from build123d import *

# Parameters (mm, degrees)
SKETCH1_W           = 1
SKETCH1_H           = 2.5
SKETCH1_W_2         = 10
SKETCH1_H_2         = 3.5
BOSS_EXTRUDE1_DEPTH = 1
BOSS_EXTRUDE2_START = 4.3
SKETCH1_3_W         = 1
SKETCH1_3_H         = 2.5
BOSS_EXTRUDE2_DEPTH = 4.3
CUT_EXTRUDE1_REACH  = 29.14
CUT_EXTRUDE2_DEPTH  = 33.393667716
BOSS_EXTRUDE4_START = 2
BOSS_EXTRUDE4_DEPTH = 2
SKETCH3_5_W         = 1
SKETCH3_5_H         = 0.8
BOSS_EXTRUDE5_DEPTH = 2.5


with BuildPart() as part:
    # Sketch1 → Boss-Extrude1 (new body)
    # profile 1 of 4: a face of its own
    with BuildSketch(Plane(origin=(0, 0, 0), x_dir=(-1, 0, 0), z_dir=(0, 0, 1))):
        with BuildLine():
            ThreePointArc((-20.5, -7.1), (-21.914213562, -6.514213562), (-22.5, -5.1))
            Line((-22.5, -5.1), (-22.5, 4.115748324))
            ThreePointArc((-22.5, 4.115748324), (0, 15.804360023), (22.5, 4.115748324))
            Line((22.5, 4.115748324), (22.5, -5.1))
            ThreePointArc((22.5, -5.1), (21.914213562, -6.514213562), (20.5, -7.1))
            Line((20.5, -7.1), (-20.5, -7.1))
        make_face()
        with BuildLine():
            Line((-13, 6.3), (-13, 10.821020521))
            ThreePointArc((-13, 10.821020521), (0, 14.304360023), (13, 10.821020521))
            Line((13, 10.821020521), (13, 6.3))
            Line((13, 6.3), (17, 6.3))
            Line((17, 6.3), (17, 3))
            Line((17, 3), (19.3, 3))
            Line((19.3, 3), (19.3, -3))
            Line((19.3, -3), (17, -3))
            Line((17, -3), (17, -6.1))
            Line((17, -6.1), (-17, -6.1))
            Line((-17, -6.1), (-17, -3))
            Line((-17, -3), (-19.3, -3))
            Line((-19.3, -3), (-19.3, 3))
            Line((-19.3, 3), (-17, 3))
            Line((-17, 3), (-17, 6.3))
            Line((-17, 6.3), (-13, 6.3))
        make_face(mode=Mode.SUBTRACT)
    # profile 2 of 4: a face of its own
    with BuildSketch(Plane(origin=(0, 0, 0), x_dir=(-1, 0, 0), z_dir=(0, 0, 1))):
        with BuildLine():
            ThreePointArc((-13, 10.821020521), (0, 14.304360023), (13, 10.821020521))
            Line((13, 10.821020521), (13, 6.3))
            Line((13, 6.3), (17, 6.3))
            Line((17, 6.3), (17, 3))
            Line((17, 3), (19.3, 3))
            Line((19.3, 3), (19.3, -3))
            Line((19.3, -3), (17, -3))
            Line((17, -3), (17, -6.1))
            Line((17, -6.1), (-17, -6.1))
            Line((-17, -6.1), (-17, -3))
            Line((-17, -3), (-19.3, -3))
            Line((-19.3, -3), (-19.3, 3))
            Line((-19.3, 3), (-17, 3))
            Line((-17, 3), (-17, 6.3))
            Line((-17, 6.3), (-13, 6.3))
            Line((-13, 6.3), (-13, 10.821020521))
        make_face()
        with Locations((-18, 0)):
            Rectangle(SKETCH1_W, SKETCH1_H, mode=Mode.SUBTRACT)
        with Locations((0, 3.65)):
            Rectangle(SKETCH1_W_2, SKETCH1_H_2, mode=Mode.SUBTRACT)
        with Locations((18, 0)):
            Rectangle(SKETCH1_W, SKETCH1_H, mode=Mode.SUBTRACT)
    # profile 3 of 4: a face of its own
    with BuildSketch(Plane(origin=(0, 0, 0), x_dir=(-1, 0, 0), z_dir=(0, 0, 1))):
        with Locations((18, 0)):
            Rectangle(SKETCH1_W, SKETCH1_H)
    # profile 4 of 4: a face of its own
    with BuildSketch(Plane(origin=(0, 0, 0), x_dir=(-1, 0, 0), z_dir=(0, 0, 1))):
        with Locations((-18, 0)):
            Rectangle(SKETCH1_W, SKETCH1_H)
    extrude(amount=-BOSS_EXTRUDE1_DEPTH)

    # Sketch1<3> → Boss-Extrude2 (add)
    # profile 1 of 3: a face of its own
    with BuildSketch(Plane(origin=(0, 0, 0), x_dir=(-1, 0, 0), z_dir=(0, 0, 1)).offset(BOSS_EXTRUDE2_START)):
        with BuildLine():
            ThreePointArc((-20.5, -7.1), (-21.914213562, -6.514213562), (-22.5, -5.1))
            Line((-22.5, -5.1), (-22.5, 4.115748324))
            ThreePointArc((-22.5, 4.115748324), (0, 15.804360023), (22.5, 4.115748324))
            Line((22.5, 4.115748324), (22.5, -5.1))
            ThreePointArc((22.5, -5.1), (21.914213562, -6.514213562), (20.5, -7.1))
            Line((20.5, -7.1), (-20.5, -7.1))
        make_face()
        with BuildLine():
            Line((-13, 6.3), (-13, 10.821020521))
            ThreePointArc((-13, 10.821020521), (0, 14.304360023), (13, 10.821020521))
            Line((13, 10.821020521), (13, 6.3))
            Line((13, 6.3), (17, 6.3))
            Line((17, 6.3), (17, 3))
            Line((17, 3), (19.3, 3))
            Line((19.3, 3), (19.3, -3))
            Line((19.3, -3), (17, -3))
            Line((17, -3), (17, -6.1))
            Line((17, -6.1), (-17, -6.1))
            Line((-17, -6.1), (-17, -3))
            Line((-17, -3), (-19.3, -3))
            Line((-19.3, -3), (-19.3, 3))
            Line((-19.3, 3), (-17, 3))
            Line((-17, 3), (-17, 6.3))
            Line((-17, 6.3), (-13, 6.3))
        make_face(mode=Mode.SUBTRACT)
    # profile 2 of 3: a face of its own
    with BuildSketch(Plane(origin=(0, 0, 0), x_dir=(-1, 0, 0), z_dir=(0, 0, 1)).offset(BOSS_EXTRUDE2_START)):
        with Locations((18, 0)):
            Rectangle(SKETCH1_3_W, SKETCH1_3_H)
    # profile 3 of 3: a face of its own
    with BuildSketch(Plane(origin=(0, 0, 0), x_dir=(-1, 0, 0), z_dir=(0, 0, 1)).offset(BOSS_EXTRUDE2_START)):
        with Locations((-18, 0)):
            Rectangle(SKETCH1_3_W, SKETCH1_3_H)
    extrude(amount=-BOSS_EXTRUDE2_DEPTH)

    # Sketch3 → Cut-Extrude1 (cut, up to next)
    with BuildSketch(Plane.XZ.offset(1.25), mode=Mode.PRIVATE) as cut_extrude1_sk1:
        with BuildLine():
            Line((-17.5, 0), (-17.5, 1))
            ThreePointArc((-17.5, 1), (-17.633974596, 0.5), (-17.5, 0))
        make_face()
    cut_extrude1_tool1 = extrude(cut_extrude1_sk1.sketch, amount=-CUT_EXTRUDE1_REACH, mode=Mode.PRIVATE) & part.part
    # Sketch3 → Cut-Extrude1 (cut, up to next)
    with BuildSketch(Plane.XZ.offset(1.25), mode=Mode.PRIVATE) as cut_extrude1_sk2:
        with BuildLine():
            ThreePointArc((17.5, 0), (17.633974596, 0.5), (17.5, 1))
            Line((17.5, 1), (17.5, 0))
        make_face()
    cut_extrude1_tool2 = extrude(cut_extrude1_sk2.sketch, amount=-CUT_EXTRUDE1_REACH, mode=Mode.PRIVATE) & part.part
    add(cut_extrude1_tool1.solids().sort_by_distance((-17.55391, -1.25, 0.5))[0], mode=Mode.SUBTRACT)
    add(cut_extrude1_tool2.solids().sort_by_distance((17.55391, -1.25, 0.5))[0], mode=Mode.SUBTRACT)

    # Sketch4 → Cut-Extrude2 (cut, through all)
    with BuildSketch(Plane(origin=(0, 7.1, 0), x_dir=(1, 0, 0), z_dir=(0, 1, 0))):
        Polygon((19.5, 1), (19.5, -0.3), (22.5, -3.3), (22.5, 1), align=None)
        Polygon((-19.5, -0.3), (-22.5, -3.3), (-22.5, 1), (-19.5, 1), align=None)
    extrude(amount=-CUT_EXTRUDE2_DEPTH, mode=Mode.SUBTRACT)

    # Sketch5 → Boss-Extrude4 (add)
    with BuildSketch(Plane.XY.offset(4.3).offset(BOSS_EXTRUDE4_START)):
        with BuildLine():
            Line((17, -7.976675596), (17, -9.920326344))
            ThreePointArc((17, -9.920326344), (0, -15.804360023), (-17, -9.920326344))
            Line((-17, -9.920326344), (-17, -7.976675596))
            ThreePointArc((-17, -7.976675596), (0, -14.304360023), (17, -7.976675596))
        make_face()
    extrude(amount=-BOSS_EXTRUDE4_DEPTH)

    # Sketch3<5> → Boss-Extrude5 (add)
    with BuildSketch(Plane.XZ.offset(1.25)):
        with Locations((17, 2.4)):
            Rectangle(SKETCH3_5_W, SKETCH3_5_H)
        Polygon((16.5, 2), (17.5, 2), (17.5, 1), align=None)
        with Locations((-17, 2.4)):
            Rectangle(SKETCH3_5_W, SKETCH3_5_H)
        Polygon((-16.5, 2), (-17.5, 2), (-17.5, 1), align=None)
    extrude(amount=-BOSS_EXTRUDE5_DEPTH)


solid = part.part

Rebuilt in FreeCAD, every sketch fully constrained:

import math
import FreeCAD as App
import Part
import Sketcher
from FreeCAD import Vector
Q = App.Units.Quantity


def add_polygon(sketch, points):
    """Adds a closed chain of lines whose ends are joined by coincident constraints."""
    first, n = sketch.GeometryCount, len(points)
    for a, b in zip(points, points[1:] + points[:1]):
        sketch.addGeometry(Part.LineSegment(App.Vector(*a, 0), App.Vector(*b, 0)), False)
    for i in range(n):
        sketch.addConstraint(Sketcher.Constraint("Coincident", first + i, 2, first + (i + 1) % n, 1))

doc = App.newDocument("Part")
params = doc.addObject("Spreadsheet::Sheet", "Params")
for row, (alias, value) in enumerate([
    ("sketch1_radius", "2 mm"),
    ("sketch1_radius2", "27.5 mm"),
    ("sketch1_width", "41 mm"),
    ("sketch1_width2", "10 mm"),
    ("sketch1_height", "3.5 mm"),
    ("pad1_length", "1 mm"),
    ("sketch2_radius", "2 mm"),
    ("sketch2_radius2", "26 mm"),
    ("sketch2_radius3", "27.5 mm"),
    ("sketch2_width", "41 mm"),
    ("sketch2_width2", "4 mm"),
    ("pad2_length", "4.3 mm"),
    ("sketch3_radius", "1 mm"),
    ("sketch3_height", "1 mm"),
    ("sketch4_radius", "1 mm"),
    ("sketch4_height", "1 mm"),
    ("sketch5_width", "3 mm"),
    ("sketch5_height", "1.3 mm"),
    ("sketch6_radius", "26 mm"),
    ("sketch6_radius2", "27.5 mm"),
    ("pad3_length", "2 mm"),
    ("sketch7_width", "1 mm"),
    ("sketch7_height", "0.8 mm"),
    ("pad4_length", "2.5 mm"),
], start=1):
    params.set(f"A{row}", alias)
    params.set(f"B{row}", "=" + value)
    params.setAlias(f"B{row}", alias)

body = doc.addObject("PartDesign::Body", "Body")

# Sketch on XY plane
sketch1 = body.newObject("Sketcher::SketchObject", "Sketch")
sketch1.AttachmentSupport = (doc.getObject("XY_Plane"), [""])
sketch1.MapMode = "FlatFace"
sketch1.addGeometry(Part.ArcOfCircle(Part.Circle(Vector(20.5, 5.1, 0), Vector(0, 0, 1), 2), math.radians(0), math.radians(90)), False)  # 0
sketch1.addGeometry(Part.LineSegment(Vector(20.5, 7.1, 0), Vector(-20.5, 7.1, 0)), False)  # 1
sketch1.addGeometry(Part.ArcOfCircle(Part.Circle(Vector(-20.5, 5.1, 0), Vector(0, 0, 1), 2), math.radians(90), math.radians(180)), False)  # 2
sketch1.addGeometry(Part.LineSegment(Vector(-22.5, 5.1, 0), Vector(-22.5, -4.1, 0)), False)  # 3
sketch1.addGeometry(Part.ArcOfCircle(Part.Circle(Vector(0, 11.7, 0), Vector(0, 0, 1), 27.5), math.radians(-145), math.radians(-35)), False)  # 4
sketch1.addGeometry(Part.LineSegment(Vector(22.5, -4.1, 0), Vector(22.5, 5.1, 0)), False)  # 5
add_polygon(sketch1, [(5, -5.4), (-5, -5.4), (-5, -1.9), (5, -1.9)])  # lines 6-9
sketch1.addConstraint(Sketcher.Constraint("Tangent", 0, 2, 1, 1))
sketch1.addConstraint(Sketcher.Constraint("Tangent", 1, 2, 2, 1))
sketch1.addConstraint(Sketcher.Constraint("Tangent", 2, 2, 3, 1))
sketch1.addConstraint(Sketcher.Constraint("Coincident", 3, 2, 4, 1))
sketch1.addConstraint(Sketcher.Constraint("Coincident", 4, 2, 5, 1))
sketch1.addConstraint(Sketcher.Constraint("Tangent", 5, 2, 0, 1))
sketch1.addConstraint(Sketcher.Constraint("Horizontal", 1))
sketch1.addConstraint(Sketcher.Constraint("Vertical", 3))
sketch1.addConstraint(Sketcher.Constraint("Vertical", 5))
sketch1.addConstraint(Sketcher.Constraint("Horizontal", 6))
sketch1.addConstraint(Sketcher.Constraint("Vertical", 7))
sketch1.addConstraint(Sketcher.Constraint("Horizontal", 8))
sketch1.addConstraint(Sketcher.Constraint("Vertical", 9))
sketch1.addConstraint(Sketcher.Constraint("Equal", 0, 2))
sketch1.addConstraint(Sketcher.Constraint("Symmetric", 3, 2, 4, 2, -2))
sketch1.addConstraint(Sketcher.Constraint("Radius", 0, Q("2 mm")))
sketch1.addConstraint(Sketcher.Constraint("Radius", 4, Q("27.5 mm")))
sketch1.addConstraint(Sketcher.Constraint("DistanceX", 1, 2, 1, 1, Q("41 mm")))
sketch1.addConstraint(Sketcher.Constraint("DistanceX", 6, 2, 6, 1, Q("10 mm")))
sketch1.addConstraint(Sketcher.Constraint("DistanceY", 7, 1, 7, 2, Q("3.5 mm")))
sketch1.addConstraint(Sketcher.Constraint("DistanceX", 6, 2, -1, 1, Q("5 mm")))
sketch1.addConstraint(Sketcher.Constraint("DistanceY", 7, 2, 2, 3, Q("7 mm")))
sketch1.addConstraint(Sketcher.Constraint("DistanceY", -1, 1, 0, 3, Q("5.1 mm")))
sketch1.addConstraint(Sketcher.Constraint("DistanceY", 3, 2, 3, 1, Q("9.215748 mm")))
sketch1.setExpression("Constraints[19]", "Params.sketch1_radius")
sketch1.setExpression("Constraints[20]", "Params.sketch1_radius2")
sketch1.setExpression("Constraints[21]", "Params.sketch1_width")
sketch1.setExpression("Constraints[22]", "Params.sketch1_width2")
sketch1.setExpression("Constraints[23]", "Params.sketch1_height")
pad1 = body.newObject("PartDesign::Pad", "Pad")
pad1.Profile = sketch1
pad1.setExpression("Length", "Params.pad1_length")
pad1.Reversed = True

# Sketch on XY plane
sketch2 = body.newObject("Sketcher::SketchObject", "Sketch001")
sketch2.AttachmentSupport = (doc.getObject("XY_Plane"), [""])
sketch2.MapMode = "FlatFace"
sketch2.AttachmentOffset = App.Placement(Vector(0, 0, 4.3), App.Rotation())
sketch2.addGeometry(Part.ArcOfCircle(Part.Circle(Vector(20.5, 5.1, 0), Vector(0, 0, 1), 2), math.radians(0), math.radians(90)), False)  # 0
sketch2.addGeometry(Part.LineSegment(Vector(20.5, 7.1, 0), Vector(-20.5, 7.1, 0)), False)  # 1
sketch2.addGeometry(Part.ArcOfCircle(Part.Circle(Vector(-20.5, 5.1, 0), Vector(0, 0, 1), 2), math.radians(90), math.radians(180)), False)  # 2
sketch2.addGeometry(Part.LineSegment(Vector(-22.5, 5.1, 0), Vector(-22.5, -4.1, 0)), False)  # 3
sketch2.addGeometry(Part.ArcOfCircle(Part.Circle(Vector(0, 11.7, 0), Vector(0, 0, 1), 27.5), math.radians(-145), math.radians(-35)), False)  # 4
sketch2.addGeometry(Part.LineSegment(Vector(22.5, -4.1, 0), Vector(22.5, 5.1, 0)), False)  # 5
sketch2.addGeometry(Part.LineSegment(Vector(13, -6.3, 0), Vector(13, -10.8, 0)), False)  # 6
sketch2.addGeometry(Part.ArcOfCircle(Part.Circle(Vector(0, 11.7, 0), Vector(0, 0, 1), 26), math.radians(-120), math.radians(-60)), False)  # 7
sketch2.addGeometry(Part.LineSegment(Vector(-13, -10.8, 0), Vector(-13, -6.3, 0)), False)  # 8
sketch2.addGeometry(Part.LineSegment(Vector(-13, -6.3, 0), Vector(-17, -6.3, 0)), False)  # 9
sketch2.addGeometry(Part.LineSegment(Vector(-17, -6.3, 0), Vector(-17, -3, 0)), False)  # 10
sketch2.addGeometry(Part.LineSegment(Vector(-17, -3, 0), Vector(-19.3, -3, 0)), False)  # 11
sketch2.addGeometry(Part.LineSegment(Vector(-19.3, -3, 0), Vector(-19.3, 3, 0)), False)  # 12
sketch2.addGeometry(Part.LineSegment(Vector(-19.3, 3, 0), Vector(-17, 3, 0)), False)  # 13
sketch2.addGeometry(Part.LineSegment(Vector(-17, 3, 0), Vector(-17, 6.1, 0)), False)  # 14
sketch2.addGeometry(Part.LineSegment(Vector(-17, 6.1, 0), Vector(17, 6.1, 0)), False)  # 15
sketch2.addGeometry(Part.LineSegment(Vector(17, 6.1, 0), Vector(17, 3, 0)), False)  # 16
sketch2.addGeometry(Part.LineSegment(Vector(17, 3, 0), Vector(19.3, 3, 0)), False)  # 17
sketch2.addGeometry(Part.LineSegment(Vector(19.3, 3, 0), Vector(19.3, -3, 0)), False)  # 18
sketch2.addGeometry(Part.LineSegment(Vector(19.3, -3, 0), Vector(17, -3, 0)), False)  # 19
sketch2.addGeometry(Part.LineSegment(Vector(17, -3, 0), Vector(17, -6.3, 0)), False)  # 20
sketch2.addGeometry(Part.LineSegment(Vector(17, -6.3, 0), Vector(13, -6.3, 0)), False)  # 21
add_polygon(sketch2, [(-17.5, -1.2), (-17.5, 1.2), (-18.5, 1.2), (-18.5, -1.2)])  # lines 22-25
add_polygon(sketch2, [(18.5, -1.2), (18.5, 1.2), (17.5, 1.2), (17.5, -1.2)])  # lines 26-29
sketch2.addConstraint(Sketcher.Constraint("Tangent", 0, 2, 1, 1))
sketch2.addConstraint(Sketcher.Constraint("Tangent", 1, 2, 2, 1))
sketch2.addConstraint(Sketcher.Constraint("Tangent", 2, 2, 3, 1))
sketch2.addConstraint(Sketcher.Constraint("Coincident", 3, 2, 4, 1))
sketch2.addConstraint(Sketcher.Constraint("Coincident", 4, 2, 5, 1))
sketch2.addConstraint(Sketcher.Constraint("Tangent", 5, 2, 0, 1))
sketch2.addConstraint(Sketcher.Constraint("Coincident", 6, 2, 7, 2))
sketch2.addConstraint(Sketcher.Constraint("Coincident", 7, 1, 8, 1))
sketch2.addConstraint(Sketcher.Constraint("Coincident", 8, 2, 9, 1))
sketch2.addConstraint(Sketcher.Constraint("Coincident", 9, 2, 10, 1))
sketch2.addConstraint(Sketcher.Constraint("Coincident", 10, 2, 11, 1))
sketch2.addConstraint(Sketcher.Constraint("Coincident", 11, 2, 12, 1))
sketch2.addConstraint(Sketcher.Constraint("Coincident", 12, 2, 13, 1))
sketch2.addConstraint(Sketcher.Constraint("Coincident", 13, 2, 14, 1))
sketch2.addConstraint(Sketcher.Constraint("Coincident", 14, 2, 15, 1))
sketch2.addConstraint(Sketcher.Constraint("Coincident", 15, 2, 16, 1))
sketch2.addConstraint(Sketcher.Constraint("Coincident", 16, 2, 17, 1))
sketch2.addConstraint(Sketcher.Constraint("Coincident", 17, 2, 18, 1))
sketch2.addConstraint(Sketcher.Constraint("Coincident", 18, 2, 19, 1))
sketch2.addConstraint(Sketcher.Constraint("Coincident", 19, 2, 20, 1))
sketch2.addConstraint(Sketcher.Constraint("Coincident", 20, 2, 21, 1))
sketch2.addConstraint(Sketcher.Constraint("Coincident", 21, 2, 6, 1))
sketch2.addConstraint(Sketcher.Constraint("Horizontal", 1))
sketch2.addConstraint(Sketcher.Constraint("Vertical", 3))
sketch2.addConstraint(Sketcher.Constraint("Vertical", 5))
sketch2.addConstraint(Sketcher.Constraint("Vertical", 6))
sketch2.addConstraint(Sketcher.Constraint("Vertical", 8))
sketch2.addConstraint(Sketcher.Constraint("Horizontal", 9))
sketch2.addConstraint(Sketcher.Constraint("Vertical", 10))
sketch2.addConstraint(Sketcher.Constraint("Horizontal", 11))
sketch2.addConstraint(Sketcher.Constraint("Vertical", 12))
sketch2.addConstraint(Sketcher.Constraint("Horizontal", 13))
sketch2.addConstraint(Sketcher.Constraint("Vertical", 14))
sketch2.addConstraint(Sketcher.Constraint("Horizontal", 15))
sketch2.addConstraint(Sketcher.Constraint("Vertical", 16))
sketch2.addConstraint(Sketcher.Constraint("Horizontal", 17))
sketch2.addConstraint(Sketcher.Constraint("Vertical", 18))
sketch2.addConstraint(Sketcher.Constraint("Horizontal", 19))
sketch2.addConstraint(Sketcher.Constraint("Vertical", 20))
sketch2.addConstraint(Sketcher.Constraint("Horizontal", 21))
sketch2.addConstraint(Sketcher.Constraint("Vertical", 22))
sketch2.addConstraint(Sketcher.Constraint("Horizontal", 23))
sketch2.addConstraint(Sketcher.Constraint("Vertical", 24))
sketch2.addConstraint(Sketcher.Constraint("Horizontal", 25))
sketch2.addConstraint(Sketcher.Constraint("Vertical", 26))
sketch2.addConstraint(Sketcher.Constraint("Horizontal", 27))
sketch2.addConstraint(Sketcher.Constraint("Vertical", 28))
sketch2.addConstraint(Sketcher.Constraint("Horizontal", 29))
sketch2.addConstraint(Sketcher.Constraint("Coincident", 7, 3, 4, 3))
sketch2.addConstraint(Sketcher.Constraint("Equal", 0, 2))
sketch2.addConstraint(Sketcher.Constraint("Symmetric", 10, 2, 16, 2, -1, 1))
sketch2.addConstraint(Sketcher.Constraint("Symmetric", 12, 2, 18, 2, -1, 1))
sketch2.addConstraint(Sketcher.Constraint("Symmetric", 24, 2, 26, 2, -1, 1))
sketch2.addConstraint(Sketcher.Constraint("Symmetric", 22, 2, 28, 2, -1, 1))
sketch2.addConstraint(Sketcher.Constraint("Symmetric", 3, 2, 4, 2, -2))
sketch2.addConstraint(Sketcher.Constraint("Symmetric", 13, 2, 16, 2, -2))
sketch2.addConstraint(Sketcher.Constraint("Symmetric", 9, 2, 20, 2, -2))
sketch2.addConstraint(Sketcher.Constraint("Horizontal", 6, 2, 7, 1))
sketch2.addConstraint(Sketcher.Constraint("Horizontal", 23, 2, 26, 2))
sketch2.addConstraint(Sketcher.Constraint("Radius", 0, Q("2 mm")))
sketch2.addConstraint(Sketcher.Constraint("Radius", 7, Q("26 mm")))
sketch2.addConstraint(Sketcher.Constraint("Radius", 4, Q("27.5 mm")))
sketch2.addConstraint(Sketcher.Constraint("DistanceX", 1, 2, 1, 1, Q("41 mm")))
sketch2.addConstraint(Sketcher.Constraint("DistanceX", 9, 2, 9, 1, Q("4 mm")))
sketch2.addConstraint(Sketcher.Constraint("DistanceX", 15, 1, 15, 2, Q("34 mm")))
sketch2.addConstraint(Sketcher.Constraint("DistanceX", 23, 2, 23, 1, Q("1 mm")))
sketch2.addConstraint(Sketcher.Constraint("DistanceY", 12, 1, 12, 2, Q("6 mm")))
sketch2.addConstraint(Sketcher.Constraint("DistanceX", 11, 2, 11, 1, Q("2.3 mm")))
sketch2.addConstraint(Sketcher.Constraint("DistanceY", 10, 1, 10, 2, Q("3.3 mm")))
sketch2.addConstraint(Sketcher.Constraint("DistanceY", 14, 1, 14, 2, Q("3.1 mm")))
sketch2.addConstraint(Sketcher.Constraint("DistanceY", 22, 1, 22, 2, Q("2.5 mm")))
sketch2.addConstraint(Sketcher.Constraint("DistanceY", 2, 3, 14, 2, Q("1 mm")))
sketch2.addConstraint(Sketcher.Constraint("DistanceX", 2, 3, 23, 2, Q("2 mm")))
sketch2.addConstraint(Sketcher.Constraint("DistanceY", 3, 2, 3, 1, Q("9.215748 mm")))
sketch2.setExpression("Constraints[67]", "Params.sketch2_radius")
sketch2.setExpression("Constraints[68]", "Params.sketch2_radius2")
sketch2.setExpression("Constraints[69]", "Params.sketch2_radius3")
sketch2.setExpression("Constraints[70]", "Params.sketch2_width")
sketch2.setExpression("Constraints[71]", "Params.sketch2_width2")
pad2 = body.newObject("PartDesign::Pad", "Pad001")
pad2.Profile = sketch2
pad2.setExpression("Length", "Params.pad2_length")
pad2.Reversed = True

# Sketch on XZ plane
sketch3 = body.newObject("Sketcher::SketchObject", "Sketch002")
sketch3.AttachmentSupport = (doc.getObject("XZ_Plane"), [""])
sketch3.MapMode = "FlatFace"
sketch3.AttachmentOffset = App.Placement(Vector(0, 0, 1.25), App.Rotation())
sketch3.addGeometry(Part.LineSegment(Vector(-17.5, 0, 0), Vector(-17.5, 1, 0)), False)
sketch3.addGeometry(Part.ArcOfCircle(Part.Circle(Vector(-16.6, 0.5, 0), Vector(0, 0, 1), 1), math.radians(150), math.radians(210)), False)
sketch3.addConstraint(Sketcher.Constraint("Coincident", 0, 1, 1, 2))
sketch3.addConstraint(Sketcher.Constraint("Coincident", 1, 1, 0, 2))
sketch3.addConstraint(Sketcher.Constraint("Vertical", 0))
sketch3.addConstraint(Sketcher.Constraint("PointOnObject", 0, 1, -1))
sketch3.addConstraint(Sketcher.Constraint("Radius", 1, Q("1 mm")))
sketch3.addConstraint(Sketcher.Constraint("DistanceY", 0, 1, 0, 2, Q("1 mm")))
sketch3.addConstraint(Sketcher.Constraint("DistanceX", 0, 1, -1, 1, Q("17.5 mm")))
sketch3.setExpression("Constraints[4]", "Params.sketch3_radius")
sketch3.setExpression("Constraints[5]", "Params.sketch3_height")
pocket1 = body.newObject("PartDesign::Pocket", "Pocket")
pocket1.Profile = sketch3
pocket1.Type = "UpToFirst"

# Sketch on XZ plane
sketch4 = body.newObject("Sketcher::SketchObject", "Sketch003")
sketch4.AttachmentSupport = (doc.getObject("XZ_Plane"), [""])
sketch4.MapMode = "FlatFace"
sketch4.AttachmentOffset = App.Placement(Vector(0, 0, 1.25), App.Rotation())
sketch4.addGeometry(Part.ArcOfCircle(Part.Circle(Vector(16.6, 0.5, 0), Vector(0, 0, 1), 1), math.radians(-30), math.radians(30)), False)
sketch4.addGeometry(Part.LineSegment(Vector(17.5, 1, 0), Vector(17.5, 0, 0)), False)
sketch4.addConstraint(Sketcher.Constraint("Coincident", 0, 1, 1, 2))
sketch4.addConstraint(Sketcher.Constraint("Coincident", 1, 1, 0, 2))
sketch4.addConstraint(Sketcher.Constraint("Vertical", 1))
sketch4.addConstraint(Sketcher.Constraint("PointOnObject", 0, 1, -1))
sketch4.addConstraint(Sketcher.Constraint("Radius", 0, Q("1 mm")))
sketch4.addConstraint(Sketcher.Constraint("DistanceY", 1, 2, 1, 1, Q("1 mm")))
sketch4.addConstraint(Sketcher.Constraint("DistanceX", -1, 1, 0, 1, Q("17.5 mm")))
sketch4.setExpression("Constraints[4]", "Params.sketch4_radius")
sketch4.setExpression("Constraints[5]", "Params.sketch4_height")
pocket2 = body.newObject("PartDesign::Pocket", "Pocket001")
pocket2.Profile = sketch4
pocket2.Type = "UpToFirst"

# Sketch on XZ plane
sketch5 = body.newObject("Sketcher::SketchObject", "Sketch004")
sketch5.AttachmentSupport = (doc.getObject("XZ_Plane"), [""])
sketch5.MapMode = "FlatFace"
sketch5.AttachmentOffset = App.Placement(Vector(0, 0, -7.1), App.Rotation())
add_polygon(sketch5, [(19.5, -1), (19.5, 0.3), (22.5, 3.3), (22.5, -1)])  # lines 0-3
add_polygon(sketch5, [(-22.5, 3.3), (-19.5, 0.3), (-19.5, -1), (-22.5, -1)])  # lines 4-7
sketch5.addConstraint(Sketcher.Constraint("Vertical", 0))
sketch5.addConstraint(Sketcher.Constraint("Vertical", 2))
sketch5.addConstraint(Sketcher.Constraint("Horizontal", 3))
sketch5.addConstraint(Sketcher.Constraint("Vertical", 5))
sketch5.addConstraint(Sketcher.Constraint("Horizontal", 6))
sketch5.addConstraint(Sketcher.Constraint("Vertical", 7))
sketch5.addConstraint(Sketcher.Constraint("Symmetric", 0, 2, 4, 2, -2))
sketch5.addConstraint(Sketcher.Constraint("Symmetric", 2, 2, 6, 2, -2))
sketch5.addConstraint(Sketcher.Constraint("Perpendicular", 1, 4))
sketch5.addConstraint(Sketcher.Constraint("Horizontal", 1, 2, 7, 2))
sketch5.addConstraint(Sketcher.Constraint("DistanceX", 3, 2, 3, 1, Q("3 mm")))
sketch5.addConstraint(Sketcher.Constraint("DistanceY", 0, 1, 0, 2, Q("1.3 mm")))
sketch5.addConstraint(Sketcher.Constraint("DistanceY", 2, 2, -1, 1, Q("1 mm")))
sketch5.addConstraint(Sketcher.Constraint("DistanceX", 4, 2, 0, 2, Q("39 mm")))
sketch5.setExpression("Constraints[18]", "Params.sketch5_width")
sketch5.setExpression("Constraints[19]", "Params.sketch5_height")
pocket3 = body.newObject("PartDesign::Pocket", "Pocket002")
pocket3.Profile = sketch5
pocket3.Type = "ThroughAll"
pocket3.Reversed = True

# Sketch on XY plane
sketch6 = body.newObject("Sketcher::SketchObject", "Sketch005")
sketch6.AttachmentSupport = (doc.getObject("XY_Plane"), [""])
sketch6.MapMode = "FlatFace"
sketch6.AttachmentOffset = App.Placement(Vector(0, 0, 6.3), App.Rotation())
sketch6.addGeometry(Part.LineSegment(Vector(17, -9.9, 0), Vector(17, -8, 0)), False)
sketch6.addGeometry(Part.ArcOfCircle(Part.Circle(Vector(0, 11.7, 0), Vector(0, 0, 1), 26), math.radians(-131), math.radians(-49)), False)
sketch6.addGeometry(Part.LineSegment(Vector(-17, -8, 0), Vector(-17, -9.9, 0)), False)
sketch6.addGeometry(Part.ArcOfCircle(Part.Circle(Vector(0, 11.7, 0), Vector(0, 0, 1), 27.5), math.radians(-128), math.radians(-52)), False)
sketch6.addConstraint(Sketcher.Constraint("Coincident", 0, 2, 1, 2))
sketch6.addConstraint(Sketcher.Constraint("Coincident", 1, 1, 2, 1))
sketch6.addConstraint(Sketcher.Constraint("Coincident", 2, 2, 3, 1))
sketch6.addConstraint(Sketcher.Constraint("Coincident", 3, 2, 0, 1))
sketch6.addConstraint(Sketcher.Constraint("Vertical", 0))
sketch6.addConstraint(Sketcher.Constraint("Vertical", 2))
sketch6.addConstraint(Sketcher.Constraint("Coincident", 3, 3, 1, 3))
sketch6.addConstraint(Sketcher.Constraint("Symmetric", 0, 2, 1, 1, -2))
sketch6.addConstraint(Sketcher.Constraint("Radius", 1, Q("26 mm")))
sketch6.addConstraint(Sketcher.Constraint("Radius", 3, Q("27.5 mm")))
sketch6.addConstraint(Sketcher.Constraint("DistanceX", -1, 1, 0, 2, Q("17 mm")))
sketch6.addConstraint(Sketcher.Constraint("DistanceY", -1, 1, 1, 3, Q("11.69564 mm")))
sketch6.setExpression("Constraints[8]", "Params.sketch6_radius")
sketch6.setExpression("Constraints[9]", "Params.sketch6_radius2")
pad3 = body.newObject("PartDesign::Pad", "Pad002")
pad3.Profile = sketch6
pad3.setExpression("Length", "Params.pad3_length")
pad3.Reversed = True

# Sketch on XZ plane
sketch7 = body.newObject("Sketcher::SketchObject", "Sketch006")
sketch7.AttachmentSupport = (doc.getObject("XZ_Plane"), [""])
sketch7.MapMode = "FlatFace"
sketch7.AttachmentOffset = App.Placement(Vector(0, 0, 1.25), App.Rotation())
add_polygon(sketch7, [(16.5, 2.8), (16.5, 2), (17.5, 1), (17.5, 2.8)])  # lines 0-3
add_polygon(sketch7, [(-17.5, 2.8), (-17.5, 1), (-16.5, 2), (-16.5, 2.8)])  # lines 4-7
sketch7.addConstraint(Sketcher.Constraint("Vertical", 0))
sketch7.addConstraint(Sketcher.Constraint("Vertical", 2))
sketch7.addConstraint(Sketcher.Constraint("Horizontal", 3))
sketch7.addConstraint(Sketcher.Constraint("Vertical", 4))
sketch7.addConstraint(Sketcher.Constraint("Vertical", 6))
sketch7.addConstraint(Sketcher.Constraint("Horizontal", 7))
sketch7.addConstraint(Sketcher.Constraint("Symmetric", 1, 2, 4, 2, -2))
sketch7.addConstraint(Sketcher.Constraint("Symmetric", 0, 2, 5, 2, -2))
sketch7.addConstraint(Sketcher.Constraint("Perpendicular", 1, 5))
sketch7.addConstraint(Sketcher.Constraint("Horizontal", 3, 2, 6, 2))
sketch7.addConstraint(Sketcher.Constraint("DistanceX", 3, 2, 3, 1, Q("1 mm")))
sketch7.addConstraint(Sketcher.Constraint("DistanceY", 0, 2, 0, 1, Q("0.8 mm")))
sketch7.addConstraint(Sketcher.Constraint("DistanceY", -1, 1, 0, 2, Q("2 mm")))
sketch7.addConstraint(Sketcher.Constraint("DistanceX", 4, 2, 0, 2, Q("34 mm")))
sketch7.setExpression("Constraints[18]", "Params.sketch7_width")
sketch7.setExpression("Constraints[19]", "Params.sketch7_height")
pad4 = body.newObject("PartDesign::Pad", "Pad003")
pad4.Profile = sketch7
pad4.setExpression("Length", "Params.pad4_length")
pad4.Reversed = True

doc.recompute()
